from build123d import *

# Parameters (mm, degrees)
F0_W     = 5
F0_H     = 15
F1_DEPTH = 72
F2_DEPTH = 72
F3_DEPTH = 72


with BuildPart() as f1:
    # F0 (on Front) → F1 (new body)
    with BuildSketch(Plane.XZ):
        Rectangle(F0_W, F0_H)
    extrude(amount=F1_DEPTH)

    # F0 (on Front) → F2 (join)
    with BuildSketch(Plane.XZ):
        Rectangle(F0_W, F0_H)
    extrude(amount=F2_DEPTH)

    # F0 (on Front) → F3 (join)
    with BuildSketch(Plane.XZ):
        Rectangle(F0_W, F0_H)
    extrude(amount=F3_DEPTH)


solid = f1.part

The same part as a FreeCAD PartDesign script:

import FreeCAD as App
import Part
import Sketcher
Q = App.Units.Quantity

doc = App.newDocument("Part")
params = doc.addObject("Spreadsheet::Sheet", "Params")
for row, (alias, value) in enumerate([
    ("sketch1_width", "5 mm"),
    ("sketch1_height", "15 mm"),
    ("pad1_length", "72 mm"),
    ("sketch2_width", "5 mm"),
    ("sketch2_height", "15 mm"),
    ("pad2_length", "72 mm"),
    ("sketch3_width", "5 mm"),
    ("sketch3_height", "15 mm"),
    ("pad3_length", "72 mm"),
], start=1):
    params.set(f"A{row}", alias)
    params.set(f"B{row}", "=" + value)
    params.setAlias(f"B{row}", alias)

body = doc.addObject("PartDesign::Body", "Body")

# Sketch on XZ plane
sketch1 = body.newObject("Sketcher::SketchObject", "Sketch")
sketch1.AttachmentSupport = (doc.getObject("XZ_Plane"), [""])
sketch1.MapMode = "FlatFace"
sketch1.addGeometry([
    Part.LineSegment(App.Vector(-2, 8, 0), App.Vector(-2, -8, 0)),
    Part.LineSegment(App.Vector(-2, -8, 0), App.Vector(2, -8, 0)),
    Part.LineSegment(App.Vector(2, -8, 0), App.Vector(2, 8, 0)),
    Part.LineSegment(App.Vector(2, 8, 0), App.Vector(-2, 8, 0)),
], False)
sketch1.addConstraint([
    Sketcher.Constraint("Coincident", 0, 2, 1, 1),
    Sketcher.Constraint("Coincident", 1, 2, 2, 1),
    Sketcher.Constraint("Coincident", 2, 2, 3, 1),
    Sketcher.Constraint("Coincident", 3, 2, 0, 1),
    Sketcher.Constraint("Vertical", 0),
    Sketcher.Constraint("Horizontal", 1),
    Sketcher.Constraint("Vertical", 2),
    Sketcher.Constraint("Horizontal", 3),
    Sketcher.Constraint("Symmetric", 0, 2, 2, 2, -1, 1),
    Sketcher.Constraint("DistanceX", 1, 1, 1, 2, Q("5 mm")),
    Sketcher.Constraint("DistanceY", 0, 2, 0, 1, Q("15 mm")),
])
sketch1.setExpression("Constraints[9]", "Params.sketch1_width")
sketch1.setExpression("Constraints[10]", "Params.sketch1_height")
pad1 = body.newObject("PartDesign::Pad", "Pad")
pad1.Profile = sketch1
pad1.setExpression("Length", "Params.pad1_length")

# Sketch on XZ plane
sketch2 = body.newObject("Sketcher::SketchObject", "Sketch001")
sketch2.AttachmentSupport = (doc.getObject("XZ_Plane"), [""])
sketch2.MapMode = "FlatFace"
sketch2.addGeometry([
    Part.LineSegment(App.Vector(-2, 8, 0), App.Vector(-2, -8, 0)),
    Part.LineSegment(App.Vector(-2, -8, 0), App.Vector(2, -8, 0)),
    Part.LineSegment(App.Vector(2, -8, 0), App.Vector(2, 8, 0)),
    Part.LineSegment(App.Vector(2, 8, 0), App.Vector(-2, 8, 0)),
], False)
sketch2.addConstraint([
    Sketcher.Constraint("Coincident", 0, 2, 1, 1),
    Sketcher.Constraint("Coincident", 1, 2, 2, 1),
    Sketcher.Constraint("Coincident", 2, 2, 3, 1),
    Sketcher.Constraint("Coincident", 3, 2, 0, 1),
    Sketcher.Constraint("Vertical", 0),
    Sketcher.Constraint("Horizontal", 1),
    Sketcher.Constraint("Vertical", 2),
    Sketcher.Constraint("Horizontal", 3),
    Sketcher.Constraint("Symmetric", 0, 2, 2, 2, -1, 1),
    Sketcher.Constraint("DistanceX", 1, 1, 1, 2, Q("5 mm")),
    Sketcher.Constraint("DistanceY", 0, 2, 0, 1, Q("15 mm")),
])
sketch2.setExpression("Constraints[9]", "Params.sketch2_width")
sketch2.setExpression("Constraints[10]", "Params.sketch2_height")
pad2 = body.newObject("PartDesign::Pad", "Pad001")
pad2.Profile = sketch2
pad2.setExpression("Length", "Params.pad2_length")

# Sketch on XZ plane
sketch3 = body.newObject("Sketcher::SketchObject", "Sketch002")
sketch3.AttachmentSupport = (doc.getObject("XZ_Plane"), [""])
sketch3.MapMode = "FlatFace"
sketch3.addGeometry([
    Part.LineSegment(App.Vector(-2, 8, 0), App.Vector(-2, -8, 0)),
    Part.LineSegment(App.Vector(-2, -8, 0), App.Vector(2, -8, 0)),
    Part.LineSegment(App.Vector(2, -8, 0), App.Vector(2, 8, 0)),
    Part.LineSegment(App.Vector(2, 8, 0), App.Vector(-2, 8, 0)),
], False)
sketch3.addConstraint([
    Sketcher.Constraint("Coincident", 0, 2, 1, 1),
    Sketcher.Constraint("Coincident", 1, 2, 2, 1),
    Sketcher.Constraint("Coincident", 2, 2, 3, 1),
    Sketcher.Constraint("Coincident", 3, 2, 0, 1),
    Sketcher.Constraint("Vertical", 0),
    Sketcher.Constraint("Horizontal", 1),
    Sketcher.Constraint("Vertical", 2),
    Sketcher.Constraint("Horizontal", 3),
    Sketcher.Constraint("Symmetric", 0, 2, 2, 2, -1, 1),
    Sketcher.Constraint("DistanceX", 1, 1, 1, 2, Q("5 mm")),
    Sketcher.Constraint("DistanceY", 0, 2, 0, 1, Q("15 mm")),
])
sketch3.setExpression("Constraints[9]", "Params.sketch3_width")
sketch3.setExpression("Constraints[10]", "Params.sketch3_height")
pad3 = body.newObject("PartDesign::Pad", "Pad002")
pad3.Profile = sketch3
pad3.setExpression("Length", "Params.pad3_length")

doc.recompute()
